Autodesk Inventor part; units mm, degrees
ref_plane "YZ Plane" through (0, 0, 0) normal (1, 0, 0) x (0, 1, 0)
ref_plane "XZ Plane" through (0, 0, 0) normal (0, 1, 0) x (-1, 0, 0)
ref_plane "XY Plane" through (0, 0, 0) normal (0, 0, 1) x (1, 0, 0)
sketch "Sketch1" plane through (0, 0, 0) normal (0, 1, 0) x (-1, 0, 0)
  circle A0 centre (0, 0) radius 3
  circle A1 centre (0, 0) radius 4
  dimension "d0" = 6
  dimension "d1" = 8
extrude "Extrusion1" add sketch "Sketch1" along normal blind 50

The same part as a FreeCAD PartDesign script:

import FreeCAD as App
import Part
import Sketcher

V = App.Vector
Q = App.Units.Quantity

doc = App.newDocument("Part")
body = doc.addObject("PartDesign::Body", "Body")

# Sketch on XZ plane
sketch1 = body.newObject("Sketcher::SketchObject", "Sketch")
sketch1.AttachmentSupport = (doc.getObject("XZ_Plane"), [""])
sketch1.MapMode = "FlatFace"
sketch1.addGeometry([
    Part.Circle(V(0, 0, 0), V(0, 0, 1), 4),
    Part.Circle(V(0, 0, 0), V(0, 0, 1), 3),
], False)
sketch1.addConstraint([
    Sketcher.Constraint("Coincident", 0, 3, -1, 1),
    Sketcher.Constraint("Coincident", 1, 3, -1, 1),
    Sketcher.Constraint("Diameter", 0, Q("8 mm")),
    Sketcher.Constraint("Diameter", 1, Q("6 mm")),
])
pad1 = body.newObject("PartDesign::Pad", "Pad")
pad1.Profile = sketch1
pad1.Length = 50
pad1.Reversed = True

doc.recompute()
